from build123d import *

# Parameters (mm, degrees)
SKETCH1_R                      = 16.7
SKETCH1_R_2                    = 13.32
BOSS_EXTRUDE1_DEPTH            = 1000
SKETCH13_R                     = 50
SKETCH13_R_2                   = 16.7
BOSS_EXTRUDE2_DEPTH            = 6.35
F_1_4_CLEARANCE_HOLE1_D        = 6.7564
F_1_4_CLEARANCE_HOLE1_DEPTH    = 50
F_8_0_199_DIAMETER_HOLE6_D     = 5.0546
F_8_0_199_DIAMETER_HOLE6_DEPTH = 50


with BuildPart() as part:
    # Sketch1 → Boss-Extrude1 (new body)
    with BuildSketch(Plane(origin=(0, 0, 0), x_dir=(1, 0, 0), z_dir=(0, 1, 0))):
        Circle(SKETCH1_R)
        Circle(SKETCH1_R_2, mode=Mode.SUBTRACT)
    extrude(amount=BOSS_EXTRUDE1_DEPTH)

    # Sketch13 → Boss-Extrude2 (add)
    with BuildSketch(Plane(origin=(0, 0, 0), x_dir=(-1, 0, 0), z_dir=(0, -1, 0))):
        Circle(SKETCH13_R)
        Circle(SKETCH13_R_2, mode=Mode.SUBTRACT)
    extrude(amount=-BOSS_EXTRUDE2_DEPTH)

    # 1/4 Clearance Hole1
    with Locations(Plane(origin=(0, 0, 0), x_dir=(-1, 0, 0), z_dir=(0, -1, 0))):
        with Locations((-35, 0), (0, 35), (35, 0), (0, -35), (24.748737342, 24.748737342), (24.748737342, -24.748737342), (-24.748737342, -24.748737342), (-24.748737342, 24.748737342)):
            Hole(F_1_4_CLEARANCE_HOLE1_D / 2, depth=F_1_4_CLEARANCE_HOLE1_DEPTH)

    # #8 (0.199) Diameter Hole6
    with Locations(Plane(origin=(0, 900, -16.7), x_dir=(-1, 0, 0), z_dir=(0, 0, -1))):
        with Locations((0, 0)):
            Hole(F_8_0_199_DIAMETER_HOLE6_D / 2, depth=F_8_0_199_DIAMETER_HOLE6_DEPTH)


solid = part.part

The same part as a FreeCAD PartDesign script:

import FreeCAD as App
import Part
import Sketcher
from FreeCAD import Vector
Q = App.Units.Quantity

doc = App.newDocument("Part")
params = doc.addObject("Spreadsheet::Sheet", "Params")
for row, (alias, value) in enumerate([
    ("sketch1_diameter", "33.4 mm"),
    ("sketch1_diameter2", "26.64 mm"),
    ("pad1_length", "1000 mm"),
    ("sketch2_diameter", "100 mm"),
    ("sketch2_diameter2", "33.4 mm"),
    ("pad2_length", "6.35 mm"),
    ("hole_diameter", "6.7564 mm"),
    ("hole_depth", "50 mm"),
    ("hole2_diameter", "5.0546 mm"),
    ("hole2_depth", "50 mm"),
], start=1):
    params.set(f"A{row}", alias)
    params.set(f"B{row}", "=" + value)
    params.setAlias(f"B{row}", alias)

body = doc.addObject("PartDesign::Body", "Body")

# Sketch on XZ plane
sketch1 = body.newObject("Sketcher::SketchObject", "Sketch")
sketch1.AttachmentSupport = (doc.getObject("XZ_Plane"), [""])
sketch1.MapMode = "FlatFace"
sketch1.addGeometry([
    Part.Circle(Vector(0, 0, 0), Vector(0, 0, 1), 16.7),
    Part.Circle(Vector(0, 0, 0), Vector(0, 0, 1), 13.32),
], False)
sketch1.addConstraint([
    Sketcher.Constraint("Coincident", 0, 3, -1, 1),
    Sketcher.Constraint("Coincident", 1, 3, -1, 1),
    Sketcher.Constraint("Diameter", 0, Q("33.4 mm")),
    Sketcher.Constraint("Diameter", 1, Q("26.64 mm")),
])
sketch1.setExpression("Constraints[2]", "Params.sketch1_diameter")
sketch1.setExpression("Constraints[3]", "Params.sketch1_diameter2")
pad1 = body.newObject("PartDesign::Pad", "Pad")
pad1.Profile = sketch1
pad1.setExpression("Length", "Params.pad1_length")
pad1.Reversed = True

# Sketch on XZ plane
sketch2 = body.newObject("Sketcher::SketchObject", "Sketch001")
sketch2.AttachmentSupport = (doc.getObject("XZ_Plane"), [""])
sketch2.MapMode = "FlatFace"
sketch2.addGeometry([
    Part.Circle(Vector(0, 0, 0), Vector(0, 0, 1), 50),
    Part.Circle(Vector(0, 0, 0), Vector(0, 0, 1), 16.7),
], False)
sketch2.addConstraint([
    Sketcher.Constraint("Coincident", 0, 3, -1, 1),
    Sketcher.Constraint("Coincident", 1, 3, -1, 1),
    Sketcher.Constraint("Diameter", 0, Q("100 mm")),
    Sketcher.Constraint("Diameter", 1, Q("33.4 mm")),
])
sketch2.setExpression("Constraints[2]", "Params.sketch2_diameter")
sketch2.setExpression("Constraints[3]", "Params.sketch2_diameter2")
pad2 = body.newObject("PartDesign::Pad", "Pad001")
pad2.Profile = sketch2
pad2.setExpression("Length", "Params.pad2_length")
pad2.Reversed = True

# Sketch on XZ plane
sketch3 = body.newObject("Sketcher::SketchObject", "Sketch002")
sketch3.AttachmentSupport = (doc.getObject("XZ_Plane"), [""])
sketch3.MapMode = "FlatFace"
sketch3.addGeometry([
    Part.Circle(Vector(35, 0, 0), Vector(0, 0, 1), 3.3782),  # 0
    Part.Circle(Vector(0, -35, 0), Vector(0, 0, 1), 3.3782),  # 1
    Part.Circle(Vector(-35, 0, 0), Vector(0, 0, 1), 3.3782),  # 2
    Part.Circle(Vector(0, 35, 0), Vector(0, 0, 1), 3.3782),  # 3
    Part.Circle(Vector(-24.748737, -24.748737, 0), Vector(0, 0, 1), 3.3782),  # 4
    Part.Circle(Vector(-24.748737, 24.748737, 0), Vector(0, 0, 1), 3.3782),  # 5
    Part.Circle(Vector(24.748737, 24.748737, 0), Vector(0, 0, 1), 3.3782),  # 6
    Part.Circle(Vector(24.748737, -24.748737, 0), Vector(0, 0, 1), 3.3782),  # 7
], False)
sketch3.addConstraint([
    Sketcher.Constraint("Equal", 0, 1),
    Sketcher.Constraint("Equal", 1, 2),
    Sketcher.Constraint("Equal", 2, 3),
    Sketcher.Constraint("Equal", 3, 4),
    Sketcher.Constraint("Equal", 4, 5),
    Sketcher.Constraint("Equal", 5, 6),
    Sketcher.Constraint("Equal", 6, 7),
    Sketcher.Constraint("Symmetric", 0, 3, 2, 3, -1, 1),
    Sketcher.Constraint("Symmetric", 1, 3, 3, 3, -1, 1),
    Sketcher.Constraint("Symmetric", 4, 3, 6, 3, -1, 1),
    Sketcher.Constraint("Symmetric", 5, 3, 7, 3, -1, 1),
    Sketcher.Constraint("Symmetric", 5, 3, 6, 3, -2),
    Sketcher.Constraint("PointOnObject", 0, 3, -1),
    Sketcher.Constraint("PointOnObject", 1, 3, -2),
    Sketcher.Constraint("DistanceX", -1, 1, 0, 3, Q("35 mm")),
    Sketcher.Constraint("DistanceY", 1, 3, -1, 1, Q("35 mm")),
    Sketcher.Constraint("Diameter", 0, Q("6.7564 mm")),
    Sketcher.Constraint("DistanceX", 4, 3, -1, 1, Q("24.748737 mm")),
    Sketcher.Constraint("DistanceY", 4, 3, -1, 1, Q("24.748737 mm")),
])
doc.recompute()
hole = body.newObject("PartDesign::Hole", "Hole")
hole.Profile = sketch3
hole.ThreadType = "None"
hole.setExpression("Diameter", "Params.hole_diameter")
hole.DepthType = "Dimension"
hole.setExpression("Depth", "Params.hole_depth")
hole.DrillPoint = "Flat"

# Sketch on XY plane
sketch4 = body.newObject("Sketcher::SketchObject", "Sketch003")
sketch4.AttachmentSupport = (doc.getObject("XY_Plane"), [""])
sketch4.MapMode = "FlatFace"
sketch4.AttachmentOffset = App.Placement(Vector(0, 0, -16.7), App.Rotation())
sketch4.addGeometry(Part.Circle(Vector(0, 900, 0), Vector(0, 0, 1), 2.5273), False)
sketch4.addConstraint([
    Sketcher.Constraint("PointOnObject", 0, 3, -2),
    Sketcher.Constraint("DistanceY", -1, 1, 0, 3, Q("900 mm")),
    Sketcher.Constraint("Diameter", 0, Q("5.0546 mm")),
])
doc.recompute()
hole2 = body.newObject("PartDesign::Hole", "Hole001")
hole2.Profile = sketch4
hole2.ThreadType = "None"
hole2.setExpression("Diameter", "Params.hole2_diameter")
hole2.DepthType = "Dimension"
hole2.setExpression("Depth", "Params.hole2_depth")
hole2.DrillPoint = "Flat"
hole2.Reversed = True

doc.recompute()
